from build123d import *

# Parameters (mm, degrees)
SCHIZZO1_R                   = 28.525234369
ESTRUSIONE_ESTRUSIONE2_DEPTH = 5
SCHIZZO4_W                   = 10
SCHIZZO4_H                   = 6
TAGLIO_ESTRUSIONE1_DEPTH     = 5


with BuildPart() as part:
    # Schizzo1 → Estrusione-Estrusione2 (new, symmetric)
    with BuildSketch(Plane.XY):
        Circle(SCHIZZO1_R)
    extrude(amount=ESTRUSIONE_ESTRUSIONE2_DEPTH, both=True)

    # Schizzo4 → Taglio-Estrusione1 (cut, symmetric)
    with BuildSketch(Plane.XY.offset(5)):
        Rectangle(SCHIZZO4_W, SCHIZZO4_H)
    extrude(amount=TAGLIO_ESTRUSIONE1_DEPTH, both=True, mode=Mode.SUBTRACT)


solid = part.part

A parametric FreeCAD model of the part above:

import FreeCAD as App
import Part
import Sketcher
from FreeCAD import Vector
Q = App.Units.Quantity


def add_polygon(sketch, points):
    """Adds a closed chain of lines whose ends are joined by coincident constraints."""
    first, n = sketch.GeometryCount, len(points)
    for a, b in zip(points, points[1:] + points[:1]):
        sketch.addGeometry(Part.LineSegment(App.Vector(*a, 0), App.Vector(*b, 0)), False)
    for i in range(n):
        sketch.addConstraint(Sketcher.Constraint("Coincident", first + i, 2, first + (i + 1) % n, 1))

doc = App.newDocument("Part")
body = doc.addObject("PartDesign::Body", "Body")

# Sketch on XY plane
sketch1 = body.newObject("Sketcher::SketchObject", "Sketch")
sketch1.AttachmentSupport = (doc.getObject("XY_Plane"), [""])
sketch1.MapMode = "FlatFace"
sketch1.addGeometry(Part.Circle(Vector(0, 0, 0), Vector(0, 0, 1), 28.525234), False)
sketch1.addConstraint(Sketcher.Constraint("Coincident", 0, 3, -1, 1))
sketch1.addConstraint(Sketcher.Constraint("Diameter", 0, Q("57.050469 mm")))
pad1 = body.newObject("PartDesign::Pad", "Pad")
pad1.Profile = sketch1
pad1.Length = 10
pad1.Midplane = True

# Sketch on XY plane
sketch2 = body.newObject("Sketcher::SketchObject", "Sketch001")
sketch2.AttachmentSupport = (doc.getObject("XY_Plane"), [""])
sketch2.MapMode = "FlatFace"
sketch2.AttachmentOffset = App.Placement(Vector(0, 0, 5), App.Rotation())
add_polygon(sketch2, [(-5, 3), (-5, -3), (5, -3), (5, 3)])  # lines 0-3
sketch2.addConstraint(Sketcher.Constraint("Vertical", 0))
sketch2.addConstraint(Sketcher.Constraint("Horizontal", 1))
sketch2.addConstraint(Sketcher.Constraint("Vertical", 2))
sketch2.addConstraint(Sketcher.Constraint("Horizontal", 3))
sketch2.addConstraint(Sketcher.Constraint("Symmetric", 0, 2, 2, 2, -1, 1))
sketch2.addConstraint(Sketcher.Constraint("DistanceX", 1, 1, 1, 2, Q("10 mm")))
sketch2.addConstraint(Sketcher.Constraint("DistanceY", 0, 2, 0, 1, Q("6 mm")))
pocket1 = body.newObject("PartDesign::Pocket", "Pocket")
pocket1.Profile = sketch2
pocket1.Length = 10
pocket1.Midplane = True

doc.recompute()
